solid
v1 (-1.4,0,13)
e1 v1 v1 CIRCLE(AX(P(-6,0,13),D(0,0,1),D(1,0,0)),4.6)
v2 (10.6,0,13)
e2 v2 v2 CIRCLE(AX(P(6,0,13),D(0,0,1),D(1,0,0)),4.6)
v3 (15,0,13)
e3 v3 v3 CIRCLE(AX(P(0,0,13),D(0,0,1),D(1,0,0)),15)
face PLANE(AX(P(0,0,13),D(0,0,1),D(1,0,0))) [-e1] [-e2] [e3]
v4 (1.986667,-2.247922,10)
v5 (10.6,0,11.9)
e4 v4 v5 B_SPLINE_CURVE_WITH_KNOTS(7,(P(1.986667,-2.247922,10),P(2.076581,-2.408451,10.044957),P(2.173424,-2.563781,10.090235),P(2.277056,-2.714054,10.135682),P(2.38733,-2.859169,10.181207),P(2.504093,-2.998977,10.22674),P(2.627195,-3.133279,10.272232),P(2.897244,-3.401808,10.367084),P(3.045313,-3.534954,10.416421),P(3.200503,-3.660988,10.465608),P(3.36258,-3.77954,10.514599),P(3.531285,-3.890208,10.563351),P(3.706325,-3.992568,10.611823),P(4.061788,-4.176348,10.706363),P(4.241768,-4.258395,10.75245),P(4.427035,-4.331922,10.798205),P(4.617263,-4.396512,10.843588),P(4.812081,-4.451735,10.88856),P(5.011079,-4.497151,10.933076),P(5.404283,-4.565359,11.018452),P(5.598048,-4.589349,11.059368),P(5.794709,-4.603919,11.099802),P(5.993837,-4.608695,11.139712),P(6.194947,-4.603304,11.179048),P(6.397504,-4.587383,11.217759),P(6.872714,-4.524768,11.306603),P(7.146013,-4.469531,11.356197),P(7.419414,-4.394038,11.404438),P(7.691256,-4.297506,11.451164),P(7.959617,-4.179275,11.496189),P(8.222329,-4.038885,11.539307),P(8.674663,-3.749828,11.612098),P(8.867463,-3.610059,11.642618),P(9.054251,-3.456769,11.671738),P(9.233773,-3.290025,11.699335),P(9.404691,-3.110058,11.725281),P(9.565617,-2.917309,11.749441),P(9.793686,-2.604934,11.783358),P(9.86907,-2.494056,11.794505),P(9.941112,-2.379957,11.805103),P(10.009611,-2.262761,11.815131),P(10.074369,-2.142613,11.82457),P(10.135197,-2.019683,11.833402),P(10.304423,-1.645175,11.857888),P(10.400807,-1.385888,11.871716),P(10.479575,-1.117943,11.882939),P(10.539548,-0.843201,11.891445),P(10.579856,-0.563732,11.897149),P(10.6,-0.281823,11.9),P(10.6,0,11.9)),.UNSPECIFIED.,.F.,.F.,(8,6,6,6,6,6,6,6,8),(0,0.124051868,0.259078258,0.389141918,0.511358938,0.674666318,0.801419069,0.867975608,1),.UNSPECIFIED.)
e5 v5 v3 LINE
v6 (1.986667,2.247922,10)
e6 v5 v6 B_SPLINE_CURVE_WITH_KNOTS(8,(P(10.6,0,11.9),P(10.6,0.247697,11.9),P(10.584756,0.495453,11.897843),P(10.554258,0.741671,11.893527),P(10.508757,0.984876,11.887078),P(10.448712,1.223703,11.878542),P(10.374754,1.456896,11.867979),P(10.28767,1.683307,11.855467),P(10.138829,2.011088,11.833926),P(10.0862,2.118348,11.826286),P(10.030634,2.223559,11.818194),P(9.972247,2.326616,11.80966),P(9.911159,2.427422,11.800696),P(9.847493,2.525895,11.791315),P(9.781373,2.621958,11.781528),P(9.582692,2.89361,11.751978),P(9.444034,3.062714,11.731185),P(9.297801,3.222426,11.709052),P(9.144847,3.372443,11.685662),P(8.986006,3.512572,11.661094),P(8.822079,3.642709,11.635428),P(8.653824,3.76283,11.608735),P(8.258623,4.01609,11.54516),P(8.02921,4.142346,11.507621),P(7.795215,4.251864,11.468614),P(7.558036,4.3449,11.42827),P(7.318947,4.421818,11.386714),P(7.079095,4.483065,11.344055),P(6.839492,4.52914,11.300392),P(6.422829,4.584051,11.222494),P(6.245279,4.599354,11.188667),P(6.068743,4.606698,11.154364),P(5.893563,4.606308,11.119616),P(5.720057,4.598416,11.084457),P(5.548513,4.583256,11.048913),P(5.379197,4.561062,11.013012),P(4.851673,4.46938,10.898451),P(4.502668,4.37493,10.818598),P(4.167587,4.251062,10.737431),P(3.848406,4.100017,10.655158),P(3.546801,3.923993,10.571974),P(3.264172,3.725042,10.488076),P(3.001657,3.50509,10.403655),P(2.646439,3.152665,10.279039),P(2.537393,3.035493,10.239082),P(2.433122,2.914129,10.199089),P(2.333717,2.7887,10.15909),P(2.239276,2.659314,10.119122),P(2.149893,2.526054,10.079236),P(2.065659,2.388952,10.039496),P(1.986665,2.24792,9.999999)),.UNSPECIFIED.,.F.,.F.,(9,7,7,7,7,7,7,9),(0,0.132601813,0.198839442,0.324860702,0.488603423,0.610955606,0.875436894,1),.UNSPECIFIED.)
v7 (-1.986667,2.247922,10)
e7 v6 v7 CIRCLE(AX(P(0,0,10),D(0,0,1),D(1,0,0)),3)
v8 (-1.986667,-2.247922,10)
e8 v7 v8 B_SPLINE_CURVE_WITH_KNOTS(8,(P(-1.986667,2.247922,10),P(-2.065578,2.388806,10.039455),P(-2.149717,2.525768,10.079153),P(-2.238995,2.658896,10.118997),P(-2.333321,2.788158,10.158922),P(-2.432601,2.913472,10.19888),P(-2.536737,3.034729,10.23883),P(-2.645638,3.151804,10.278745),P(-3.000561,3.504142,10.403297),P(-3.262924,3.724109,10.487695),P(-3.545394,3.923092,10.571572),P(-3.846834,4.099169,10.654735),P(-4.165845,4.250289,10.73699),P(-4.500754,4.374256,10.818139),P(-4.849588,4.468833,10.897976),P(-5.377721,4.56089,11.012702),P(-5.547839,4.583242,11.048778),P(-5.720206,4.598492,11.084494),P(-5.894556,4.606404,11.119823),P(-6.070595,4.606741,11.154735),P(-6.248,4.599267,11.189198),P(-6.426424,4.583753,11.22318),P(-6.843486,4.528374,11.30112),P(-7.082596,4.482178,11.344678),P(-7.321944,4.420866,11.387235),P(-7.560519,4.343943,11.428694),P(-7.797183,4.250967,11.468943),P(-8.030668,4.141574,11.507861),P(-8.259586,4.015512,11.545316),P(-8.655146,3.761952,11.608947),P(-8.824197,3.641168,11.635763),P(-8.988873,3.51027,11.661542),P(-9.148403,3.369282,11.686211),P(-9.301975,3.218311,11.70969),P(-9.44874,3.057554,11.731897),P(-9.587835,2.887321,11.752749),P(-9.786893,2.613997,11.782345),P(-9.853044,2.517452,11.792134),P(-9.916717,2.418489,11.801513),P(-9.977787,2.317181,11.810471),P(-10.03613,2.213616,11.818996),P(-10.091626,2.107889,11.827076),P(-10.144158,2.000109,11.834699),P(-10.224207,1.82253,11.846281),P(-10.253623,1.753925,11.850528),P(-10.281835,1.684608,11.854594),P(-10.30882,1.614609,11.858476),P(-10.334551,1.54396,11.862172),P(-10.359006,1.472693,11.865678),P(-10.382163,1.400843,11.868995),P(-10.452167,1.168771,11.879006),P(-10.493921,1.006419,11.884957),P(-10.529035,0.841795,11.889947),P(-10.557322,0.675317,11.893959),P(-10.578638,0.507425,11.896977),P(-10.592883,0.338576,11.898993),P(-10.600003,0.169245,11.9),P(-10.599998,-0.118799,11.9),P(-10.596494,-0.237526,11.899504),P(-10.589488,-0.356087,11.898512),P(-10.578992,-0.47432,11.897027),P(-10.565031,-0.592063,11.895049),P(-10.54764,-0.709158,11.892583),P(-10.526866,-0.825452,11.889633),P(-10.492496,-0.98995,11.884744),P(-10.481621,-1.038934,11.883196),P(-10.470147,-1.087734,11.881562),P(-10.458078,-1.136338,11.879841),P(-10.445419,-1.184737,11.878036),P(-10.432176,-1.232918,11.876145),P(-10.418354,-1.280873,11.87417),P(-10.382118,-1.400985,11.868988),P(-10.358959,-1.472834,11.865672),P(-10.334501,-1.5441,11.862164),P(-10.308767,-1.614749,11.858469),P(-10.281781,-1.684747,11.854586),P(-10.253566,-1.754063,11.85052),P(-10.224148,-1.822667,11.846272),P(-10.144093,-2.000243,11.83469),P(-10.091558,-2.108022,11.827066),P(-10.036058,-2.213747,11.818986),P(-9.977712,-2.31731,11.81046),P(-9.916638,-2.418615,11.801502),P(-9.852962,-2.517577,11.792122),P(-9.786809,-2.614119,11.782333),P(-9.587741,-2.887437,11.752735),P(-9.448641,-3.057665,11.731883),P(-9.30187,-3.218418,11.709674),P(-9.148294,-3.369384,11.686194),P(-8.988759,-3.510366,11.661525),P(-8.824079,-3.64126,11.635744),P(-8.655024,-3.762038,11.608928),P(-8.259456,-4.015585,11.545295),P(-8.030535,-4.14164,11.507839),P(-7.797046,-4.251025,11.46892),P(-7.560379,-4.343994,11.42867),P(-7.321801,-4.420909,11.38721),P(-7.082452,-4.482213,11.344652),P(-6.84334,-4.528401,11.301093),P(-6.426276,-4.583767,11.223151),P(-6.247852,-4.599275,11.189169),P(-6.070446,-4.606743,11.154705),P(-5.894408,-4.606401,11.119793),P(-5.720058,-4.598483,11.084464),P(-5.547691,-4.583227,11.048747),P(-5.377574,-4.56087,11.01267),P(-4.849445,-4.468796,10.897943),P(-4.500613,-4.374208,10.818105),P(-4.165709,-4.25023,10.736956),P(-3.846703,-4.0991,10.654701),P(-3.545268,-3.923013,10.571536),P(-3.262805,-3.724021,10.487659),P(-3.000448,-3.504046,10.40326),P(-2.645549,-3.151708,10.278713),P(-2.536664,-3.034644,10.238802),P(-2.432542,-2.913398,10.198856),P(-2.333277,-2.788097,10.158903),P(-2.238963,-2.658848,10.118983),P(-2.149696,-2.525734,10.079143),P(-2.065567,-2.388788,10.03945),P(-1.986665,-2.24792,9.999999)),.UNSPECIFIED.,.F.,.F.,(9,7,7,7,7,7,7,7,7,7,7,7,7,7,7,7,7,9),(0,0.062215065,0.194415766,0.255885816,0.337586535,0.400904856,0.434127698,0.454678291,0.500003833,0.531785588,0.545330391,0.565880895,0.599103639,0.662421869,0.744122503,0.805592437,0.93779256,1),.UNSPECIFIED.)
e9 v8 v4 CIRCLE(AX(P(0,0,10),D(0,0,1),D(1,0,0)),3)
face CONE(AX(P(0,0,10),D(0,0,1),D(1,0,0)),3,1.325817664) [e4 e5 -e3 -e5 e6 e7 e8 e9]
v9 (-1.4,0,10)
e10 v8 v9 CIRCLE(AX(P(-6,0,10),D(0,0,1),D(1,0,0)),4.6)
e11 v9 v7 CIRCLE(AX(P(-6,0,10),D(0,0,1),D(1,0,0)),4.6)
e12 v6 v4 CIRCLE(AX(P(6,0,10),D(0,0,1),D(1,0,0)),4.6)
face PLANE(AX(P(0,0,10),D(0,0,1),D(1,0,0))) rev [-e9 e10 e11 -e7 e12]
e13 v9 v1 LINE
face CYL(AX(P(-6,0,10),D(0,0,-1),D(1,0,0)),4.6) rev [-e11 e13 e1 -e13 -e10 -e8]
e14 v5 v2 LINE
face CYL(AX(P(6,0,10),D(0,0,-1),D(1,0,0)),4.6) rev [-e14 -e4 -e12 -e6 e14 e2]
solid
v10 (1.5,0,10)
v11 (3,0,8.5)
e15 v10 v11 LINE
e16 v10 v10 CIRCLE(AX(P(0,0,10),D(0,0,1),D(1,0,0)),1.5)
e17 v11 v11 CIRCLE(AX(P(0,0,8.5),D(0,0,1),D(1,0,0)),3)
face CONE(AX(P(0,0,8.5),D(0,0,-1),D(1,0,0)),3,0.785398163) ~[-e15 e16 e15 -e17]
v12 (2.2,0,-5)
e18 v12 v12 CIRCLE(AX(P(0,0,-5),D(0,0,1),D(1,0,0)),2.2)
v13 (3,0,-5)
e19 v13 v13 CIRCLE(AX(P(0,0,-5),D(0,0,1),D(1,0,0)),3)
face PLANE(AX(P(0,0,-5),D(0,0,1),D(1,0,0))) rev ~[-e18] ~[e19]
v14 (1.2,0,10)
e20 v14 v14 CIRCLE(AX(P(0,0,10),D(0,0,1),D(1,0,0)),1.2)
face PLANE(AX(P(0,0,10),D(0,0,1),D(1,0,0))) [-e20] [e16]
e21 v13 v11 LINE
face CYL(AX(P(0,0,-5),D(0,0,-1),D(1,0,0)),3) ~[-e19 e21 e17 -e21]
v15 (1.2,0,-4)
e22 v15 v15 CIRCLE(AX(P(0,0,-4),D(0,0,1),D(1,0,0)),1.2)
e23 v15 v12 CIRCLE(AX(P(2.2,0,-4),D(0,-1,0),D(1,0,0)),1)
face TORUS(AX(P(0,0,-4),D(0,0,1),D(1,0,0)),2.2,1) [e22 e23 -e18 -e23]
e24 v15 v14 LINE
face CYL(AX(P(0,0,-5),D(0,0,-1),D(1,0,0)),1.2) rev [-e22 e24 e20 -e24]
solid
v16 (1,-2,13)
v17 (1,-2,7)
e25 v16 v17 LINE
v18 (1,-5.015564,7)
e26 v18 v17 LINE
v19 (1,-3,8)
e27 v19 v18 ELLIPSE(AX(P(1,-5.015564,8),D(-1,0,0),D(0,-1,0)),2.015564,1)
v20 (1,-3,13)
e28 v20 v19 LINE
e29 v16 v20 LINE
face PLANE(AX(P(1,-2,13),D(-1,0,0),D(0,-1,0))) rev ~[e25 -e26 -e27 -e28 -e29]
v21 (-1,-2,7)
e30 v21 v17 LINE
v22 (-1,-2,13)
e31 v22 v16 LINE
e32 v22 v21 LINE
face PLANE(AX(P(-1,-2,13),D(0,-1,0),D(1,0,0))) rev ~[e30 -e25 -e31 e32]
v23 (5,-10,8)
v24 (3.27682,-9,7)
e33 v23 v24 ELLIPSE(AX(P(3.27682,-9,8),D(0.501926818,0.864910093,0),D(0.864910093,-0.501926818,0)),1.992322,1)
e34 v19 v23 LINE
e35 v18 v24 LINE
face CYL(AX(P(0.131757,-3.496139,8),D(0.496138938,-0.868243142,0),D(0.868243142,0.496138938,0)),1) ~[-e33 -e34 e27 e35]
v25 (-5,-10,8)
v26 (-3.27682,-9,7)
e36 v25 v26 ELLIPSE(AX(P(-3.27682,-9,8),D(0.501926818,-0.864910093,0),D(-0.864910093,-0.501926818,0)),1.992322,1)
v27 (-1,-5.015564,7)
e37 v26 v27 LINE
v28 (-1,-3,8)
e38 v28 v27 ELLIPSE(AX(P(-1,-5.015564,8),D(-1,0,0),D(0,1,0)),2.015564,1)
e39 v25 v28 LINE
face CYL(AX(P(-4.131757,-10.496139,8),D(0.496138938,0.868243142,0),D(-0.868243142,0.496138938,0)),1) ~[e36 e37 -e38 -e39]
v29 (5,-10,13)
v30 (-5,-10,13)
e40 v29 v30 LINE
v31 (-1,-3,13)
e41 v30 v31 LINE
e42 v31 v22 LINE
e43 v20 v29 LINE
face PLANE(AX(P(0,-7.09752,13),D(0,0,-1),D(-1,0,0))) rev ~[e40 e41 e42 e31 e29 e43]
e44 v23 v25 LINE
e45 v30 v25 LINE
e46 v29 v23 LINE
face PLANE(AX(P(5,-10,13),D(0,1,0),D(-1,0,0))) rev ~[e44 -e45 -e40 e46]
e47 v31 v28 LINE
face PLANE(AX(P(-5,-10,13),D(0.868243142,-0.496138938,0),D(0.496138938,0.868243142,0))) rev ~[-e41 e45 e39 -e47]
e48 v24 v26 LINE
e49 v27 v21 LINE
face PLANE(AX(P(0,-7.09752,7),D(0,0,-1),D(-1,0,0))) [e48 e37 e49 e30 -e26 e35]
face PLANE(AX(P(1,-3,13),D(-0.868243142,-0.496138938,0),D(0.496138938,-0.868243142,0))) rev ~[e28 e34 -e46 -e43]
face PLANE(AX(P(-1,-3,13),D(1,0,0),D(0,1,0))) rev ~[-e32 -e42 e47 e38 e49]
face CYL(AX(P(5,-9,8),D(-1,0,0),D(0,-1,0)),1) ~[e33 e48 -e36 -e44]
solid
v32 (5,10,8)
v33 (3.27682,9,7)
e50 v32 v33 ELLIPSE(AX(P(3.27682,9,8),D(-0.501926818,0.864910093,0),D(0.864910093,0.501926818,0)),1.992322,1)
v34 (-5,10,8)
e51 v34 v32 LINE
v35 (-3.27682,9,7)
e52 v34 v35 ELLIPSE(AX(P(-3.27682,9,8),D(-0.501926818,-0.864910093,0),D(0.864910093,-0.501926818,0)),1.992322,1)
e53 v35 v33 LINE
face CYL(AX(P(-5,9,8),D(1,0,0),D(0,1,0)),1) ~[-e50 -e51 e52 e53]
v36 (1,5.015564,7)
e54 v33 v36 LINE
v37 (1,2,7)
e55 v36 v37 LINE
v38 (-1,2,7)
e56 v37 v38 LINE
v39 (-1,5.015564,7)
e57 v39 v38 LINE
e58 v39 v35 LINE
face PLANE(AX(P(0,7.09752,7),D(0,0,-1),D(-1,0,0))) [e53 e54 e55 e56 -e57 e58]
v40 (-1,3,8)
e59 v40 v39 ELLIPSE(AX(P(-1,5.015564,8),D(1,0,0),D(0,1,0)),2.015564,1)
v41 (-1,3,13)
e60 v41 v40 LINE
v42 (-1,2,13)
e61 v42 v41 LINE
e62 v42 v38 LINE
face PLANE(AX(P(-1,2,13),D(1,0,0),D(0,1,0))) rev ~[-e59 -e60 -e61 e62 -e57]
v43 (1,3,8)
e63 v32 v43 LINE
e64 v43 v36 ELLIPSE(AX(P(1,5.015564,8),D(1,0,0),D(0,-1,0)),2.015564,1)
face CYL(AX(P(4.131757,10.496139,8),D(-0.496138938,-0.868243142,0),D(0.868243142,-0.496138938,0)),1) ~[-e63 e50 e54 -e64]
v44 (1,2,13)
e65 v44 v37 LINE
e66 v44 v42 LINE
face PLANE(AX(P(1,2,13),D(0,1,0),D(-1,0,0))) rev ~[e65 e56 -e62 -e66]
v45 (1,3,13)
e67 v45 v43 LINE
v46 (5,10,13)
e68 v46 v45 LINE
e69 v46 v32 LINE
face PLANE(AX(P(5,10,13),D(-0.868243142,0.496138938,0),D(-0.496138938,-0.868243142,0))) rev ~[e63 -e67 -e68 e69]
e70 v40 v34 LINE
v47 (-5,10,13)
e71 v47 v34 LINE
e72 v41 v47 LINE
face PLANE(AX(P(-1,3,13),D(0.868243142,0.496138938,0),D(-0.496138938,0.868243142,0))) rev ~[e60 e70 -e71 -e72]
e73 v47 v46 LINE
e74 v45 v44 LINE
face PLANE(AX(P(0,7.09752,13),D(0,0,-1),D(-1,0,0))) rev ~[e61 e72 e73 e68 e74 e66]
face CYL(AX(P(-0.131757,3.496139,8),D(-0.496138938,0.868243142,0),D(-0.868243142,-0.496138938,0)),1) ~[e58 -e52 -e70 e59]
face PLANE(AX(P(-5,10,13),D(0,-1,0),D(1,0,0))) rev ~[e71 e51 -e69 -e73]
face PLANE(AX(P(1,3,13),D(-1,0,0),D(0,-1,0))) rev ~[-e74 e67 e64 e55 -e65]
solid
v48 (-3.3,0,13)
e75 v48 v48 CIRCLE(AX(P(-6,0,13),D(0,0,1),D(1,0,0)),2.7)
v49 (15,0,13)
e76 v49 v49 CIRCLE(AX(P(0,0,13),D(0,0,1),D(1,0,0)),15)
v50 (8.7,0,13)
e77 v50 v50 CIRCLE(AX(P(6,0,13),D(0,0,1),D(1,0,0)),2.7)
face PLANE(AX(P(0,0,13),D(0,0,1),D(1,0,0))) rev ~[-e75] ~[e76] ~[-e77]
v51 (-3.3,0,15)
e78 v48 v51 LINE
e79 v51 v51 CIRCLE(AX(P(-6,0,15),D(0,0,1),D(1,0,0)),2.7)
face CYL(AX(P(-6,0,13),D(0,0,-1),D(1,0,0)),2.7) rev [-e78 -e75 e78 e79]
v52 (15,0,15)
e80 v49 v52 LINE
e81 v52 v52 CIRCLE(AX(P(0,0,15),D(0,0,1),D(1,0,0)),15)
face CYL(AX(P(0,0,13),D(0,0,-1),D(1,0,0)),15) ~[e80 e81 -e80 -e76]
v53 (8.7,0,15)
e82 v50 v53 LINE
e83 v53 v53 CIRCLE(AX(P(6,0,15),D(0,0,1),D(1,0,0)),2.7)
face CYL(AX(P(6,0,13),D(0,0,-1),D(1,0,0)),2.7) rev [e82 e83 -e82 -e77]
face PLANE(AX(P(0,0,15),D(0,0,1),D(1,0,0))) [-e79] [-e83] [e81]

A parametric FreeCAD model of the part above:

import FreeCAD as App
import Part
import Sketcher
from FreeCAD import Vector


def edges_at(feature, points):
    """Names of the edges that pass closest to the given points."""
    edges = feature.Shape.Edges
    near = lambda p: min(range(len(edges)), key=lambda i: edges[i].distToShape(Part.Vertex(*p))[0])
    return sorted({f"Edge{near(p) + 1}" for p in points})

doc = App.newDocument("Part")
body = doc.addObject("PartDesign::Body", "Body")

# Sketch on XY plane
sketch1 = doc.addObject("Sketcher::SketchObject", "Sketch")
body.addObject(sketch1)
sketch1.AttachmentSupport = (doc.XY_Plane, [""])
sketch1.MapMode = "FlatFace"
sketch1.AttachmentOffset = App.Placement(Vector(0, 0, 13), App.Rotation())
sketch1.addGeometry(Part.Circle(Vector(0, 0, 0), Vector(0, 0, 1), 15), False)
sketch1.addGeometry(Part.Circle(Vector(-6, 0, 0), Vector(0, 0, 1), 2.7), False)
sketch1.addGeometry(Part.Circle(Vector(6, 0, 0), Vector(0, 0, 1), 2.7), False)
sketch1.addConstraint(Sketcher.Constraint("Coincident", 0, 3, -1, 1))
sketch1.addConstraint(Sketcher.Constraint("Equal", 1, 2))
sketch1.addConstraint(Sketcher.Constraint("Symmetric", 1, 3, 2, 3, -1, 1))
sketch1.addConstraint(Sketcher.Constraint("PointOnObject", 1, 3, -1))
sketch1.addConstraint(Sketcher.Constraint("Diameter", 0, 30.0))
sketch1.addConstraint(Sketcher.Constraint("Diameter", 1, 5.4))
sketch1.addConstraint(Sketcher.Constraint("DistanceX", 1, 3, -1, 1, 6.0))
pad1 = doc.addObject("PartDesign::Pad", "Pad")
body.addObject(pad1)
pad1.Profile = sketch1
pad1.Length = 2
body2 = doc.addObject("PartDesign::Body", "Body001")
body2.AllowCompound = True

# Sketch on XY plane
sketch2 = doc.addObject("Sketcher::SketchObject", "Sketch001")
body2.addObject(sketch2)
sketch2.AttachmentSupport = (doc.getObject("XY_Plane001"), [""])
sketch2.MapMode = "FlatFace"
sketch2.AttachmentOffset = App.Placement(Vector(0, 0, 10), App.Rotation())
sketch2.addGeometry(Part.Circle(Vector(-6, 0, 0), Vector(0, 0, 1), 4.6), False)
sketch2.addGeometry(Part.Circle(Vector(6, 0, 0), Vector(0, 0, 1), 4.6), False)
sketch2.addConstraint(Sketcher.Constraint("Equal", 0, 1))
sketch2.addConstraint(Sketcher.Constraint("Symmetric", 0, 3, 1, 3, -1, 1))
sketch2.addConstraint(Sketcher.Constraint("PointOnObject", 0, 3, -1))
sketch2.addConstraint(Sketcher.Constraint("Diameter", 0, 9.2))
sketch2.addConstraint(Sketcher.Constraint("DistanceX", 0, 3, -1, 1, 6.0))
pad2 = doc.addObject("PartDesign::Pad", "Pad001")
body2.addObject(pad2)
pad2.Profile = sketch2
pad2.Length = 3
body3 = doc.addObject("PartDesign::Body", "Body002")

# Sketch on XZ plane
sketch3 = doc.addObject("Sketcher::SketchObject", "Sketch002")
body3.addObject(sketch3)
sketch3.AttachmentSupport = (doc.getObject("XZ_Plane002"), [""])
sketch3.MapMode = "FlatFace"
sketch3.addGeometry(Part.LineSegment(Vector(0, 10, 0), Vector(3, 10, 0)), False)
sketch3.addGeometry(Part.LineSegment(Vector(3, 10, 0), Vector(15, 13, 0)), False)
sketch3.addGeometry(Part.LineSegment(Vector(15, 13, 0), Vector(0, 13, 0)), False)
sketch3.addGeometry(Part.LineSegment(Vector(0, 13, 0), Vector(0, 10, 0)), False)
sketch3.addConstraint(Sketcher.Constraint("Coincident", 0, 2, 1, 1))
sketch3.addConstraint(Sketcher.Constraint("Coincident", 1, 2, 2, 1))
sketch3.addConstraint(Sketcher.Constraint("Coincident", 2, 2, 3, 1))
sketch3.addConstraint(Sketcher.Constraint("Coincident", 3, 2, 0, 1))
sketch3.addConstraint(Sketcher.Constraint("Horizontal", 0))
sketch3.addConstraint(Sketcher.Constraint("Horizontal", 2))
sketch3.addConstraint(Sketcher.Constraint("Vertical", 3))
sketch3.addConstraint(Sketcher.Constraint("PointOnObject", 2, 2, -2))
sketch3.addConstraint(Sketcher.Constraint("Equal", 0, 3))
sketch3.addConstraint(Sketcher.Constraint("DistanceX", 0, 1, 0, 2, 3.0))
sketch3.addConstraint(Sketcher.Constraint("DistanceX", 2, 2, 2, 1, 15.0))
sketch3.addConstraint(Sketcher.Constraint("DistanceY", -1, 1, 0, 2, 10.0))
revolution = doc.addObject("PartDesign::Revolution", "Revolution")
body3.addObject(revolution)
revolution.Profile = sketch3
revolution.ReferenceAxis = (sketch3, ["V_Axis"])
revolution.Angle = 360
doc.recompute()

boolean = doc.addObject("PartDesign::Boolean", "Boolean")
body3.addObject(boolean)
boolean.Type = "Cut"
boolean.addObjects([body2])
body4 = doc.addObject("PartDesign::Body", "Body003")
body4.AllowCompound = True

# Sketch on XY plane
sketch4 = doc.addObject("Sketcher::SketchObject", "Sketch003")
body4.addObject(sketch4)
sketch4.AttachmentSupport = (doc.getObject("XY_Plane003"), [""])
sketch4.MapMode = "FlatFace"
sketch4.AttachmentOffset = App.Placement(Vector(0, 0, 13), App.Rotation())
sketch4.addGeometry(Part.LineSegment(Vector(5, 10, 0), Vector(-5, 10, 0)), False)
sketch4.addGeometry(Part.LineSegment(Vector(-5, 10, 0), Vector(-1, 3, 0)), False)
sketch4.addGeometry(Part.LineSegment(Vector(-1, 3, 0), Vector(-1, 2, 0)), False)
sketch4.addGeometry(Part.LineSegment(Vector(-1, 2, 0), Vector(1, 2, 0)), False)
sketch4.addGeometry(Part.LineSegment(Vector(1, 2, 0), Vector(1, 3, 0)), False)
sketch4.addGeometry(Part.LineSegment(Vector(1, 3, 0), Vector(5, 10, 0)), False)
sketch4.addGeometry(Part.LineSegment(Vector(5, -10, 0), Vector(1, -3, 0)), False)
sketch4.addGeometry(Part.LineSegment(Vector(1, -3, 0), Vector(1, -2, 0)), False)
sketch4.addGeometry(Part.LineSegment(Vector(1, -2, 0), Vector(-1, -2, 0)), False)
sketch4.addGeometry(Part.LineSegment(Vector(-1, -2, 0), Vector(-1, -3, 0)), False)
sketch4.addGeometry(Part.LineSegment(Vector(-1, -3, 0), Vector(-5, -10, 0)), False)
sketch4.addGeometry(Part.LineSegment(Vector(-5, -10, 0), Vector(5, -10, 0)), False)
sketch4.addConstraint(Sketcher.Constraint("Coincident", 0, 2, 1, 1))
sketch4.addConstraint(Sketcher.Constraint("Coincident", 1, 2, 2, 1))
sketch4.addConstraint(Sketcher.Constraint("Coincident", 2, 2, 3, 1))
sketch4.addConstraint(Sketcher.Constraint("Coincident", 3, 2, 4, 1))
sketch4.addConstraint(Sketcher.Constraint("Coincident", 4, 2, 5, 1))
sketch4.addConstraint(Sketcher.Constraint("Coincident", 5, 2, 0, 1))
sketch4.addConstraint(Sketcher.Constraint("Coincident", 6, 2, 7, 1))
sketch4.addConstraint(Sketcher.Constraint("Coincident", 7, 2, 8, 1))
sketch4.addConstraint(Sketcher.Constraint("Coincident", 8, 2, 9, 1))
sketch4.addConstraint(Sketcher.Constraint("Coincident", 9, 2, 10, 1))
sketch4.addConstraint(Sketcher.Constraint("Coincident", 10, 2, 11, 1))
sketch4.addConstraint(Sketcher.Constraint("Coincident", 11, 2, 6, 1))
sketch4.addConstraint(Sketcher.Constraint("Horizontal", 0))
sketch4.addConstraint(Sketcher.Constraint("Vertical", 2))
sketch4.addConstraint(Sketcher.Constraint("Horizontal", 3))
sketch4.addConstraint(Sketcher.Constraint("Vertical", 4))
sketch4.addConstraint(Sketcher.Constraint("Vertical", 7))
sketch4.addConstraint(Sketcher.Constraint("Horizontal", 8))
sketch4.addConstraint(Sketcher.Constraint("Vertical", 9))
sketch4.addConstraint(Sketcher.Constraint("Horizontal", 11))
sketch4.addConstraint(Sketcher.Constraint("Symmetric", 1, 2, 6, 2, -1, 1))
sketch4.addConstraint(Sketcher.Constraint("Symmetric", 3, 2, 8, 2, -1, 1))
sketch4.addConstraint(Sketcher.Constraint("Symmetric", 5, 2, 10, 2, -1, 1))
sketch4.addConstraint(Sketcher.Constraint("Symmetric", 1, 2, 4, 2, -2))
sketch4.addConstraint(Sketcher.Constraint("Parallel", 1, 6))
sketch4.addConstraint(Sketcher.Constraint("Parallel", 5, 10))
sketch4.addConstraint(Sketcher.Constraint("Vertical", 0, 2, 10, 2))
sketch4.addConstraint(Sketcher.Constraint("DistanceX", 0, 2, 0, 1, 10.0))
sketch4.addConstraint(Sketcher.Constraint("DistanceX", 3, 1, 3, 2, 2.0))
sketch4.addConstraint(Sketcher.Constraint("DistanceY", 2, 2, 2, 1, 1.0))
sketch4.addConstraint(Sketcher.Constraint("DistanceY", -1, 1, 0, 2, 10.0))
sketch4.addConstraint(Sketcher.Constraint("DistanceY", -1, 1, 1, 2, 3.0))
pad3 = doc.addObject("PartDesign::Pad", "Pad002")
body4.addObject(pad3)
pad3.Profile = sketch4
pad3.Length = 6
pad3.Reversed = True
doc.recompute()

fillet = doc.addObject("PartDesign::Fillet", "Fillet")
body4.addObject(fillet)
fillet.Base = (pad3, edges_at(pad3, [
    (0, 10, 7),
    (3, 6.5, 7),
    (-3, 6.5, 7),
    (3, -6.5, 7),
    (0, -10, 7),
    (-3, -6.5, 7),
]))
fillet.Radius = 1
body5 = doc.addObject("PartDesign::Body", "Body004")

# Sketch on XY plane
sketch5 = doc.addObject("Sketcher::SketchObject", "Sketch004")
body5.addObject(sketch5)
sketch5.AttachmentSupport = (doc.getObject("XY_Plane004"), [""])
sketch5.MapMode = "FlatFace"
sketch5.AttachmentOffset = App.Placement(Vector(0, 0, -5), App.Rotation())
sketch5.addGeometry(Part.Circle(Vector(0, 0, 0), Vector(0, 0, 1), 3), False)
sketch5.addGeometry(Part.Circle(Vector(0, 0, 0), Vector(0, 0, 1), 1.2), False)
sketch5.addConstraint(Sketcher.Constraint("Coincident", 0, 3, -1, 1))
sketch5.addConstraint(Sketcher.Constraint("Coincident", 1, 3, -1, 1))
sketch5.addConstraint(Sketcher.Constraint("Diameter", 0, 6.0))
sketch5.addConstraint(Sketcher.Constraint("Diameter", 1, 2.4))
pad4 = doc.addObject("PartDesign::Pad", "Pad003")
body5.addObject(pad4)
pad4.Profile = sketch5
pad4.Length = 15
doc.recompute()

fillet2 = doc.addObject("PartDesign::Fillet", "Fillet001")
body5.addObject(fillet2)
fillet2.Base = (pad4, edges_at(pad4, [(-1.2, 0, -5)]))
fillet2.Radius = 1
doc.recompute()

chamfer = doc.addObject("PartDesign::Chamfer", "Chamfer")
body5.addObject(chamfer)
chamfer.Base = (fillet2, edges_at(fillet2, [(-3, 0, 10)]))
chamfer.Size = 1.5

doc.recompute()
